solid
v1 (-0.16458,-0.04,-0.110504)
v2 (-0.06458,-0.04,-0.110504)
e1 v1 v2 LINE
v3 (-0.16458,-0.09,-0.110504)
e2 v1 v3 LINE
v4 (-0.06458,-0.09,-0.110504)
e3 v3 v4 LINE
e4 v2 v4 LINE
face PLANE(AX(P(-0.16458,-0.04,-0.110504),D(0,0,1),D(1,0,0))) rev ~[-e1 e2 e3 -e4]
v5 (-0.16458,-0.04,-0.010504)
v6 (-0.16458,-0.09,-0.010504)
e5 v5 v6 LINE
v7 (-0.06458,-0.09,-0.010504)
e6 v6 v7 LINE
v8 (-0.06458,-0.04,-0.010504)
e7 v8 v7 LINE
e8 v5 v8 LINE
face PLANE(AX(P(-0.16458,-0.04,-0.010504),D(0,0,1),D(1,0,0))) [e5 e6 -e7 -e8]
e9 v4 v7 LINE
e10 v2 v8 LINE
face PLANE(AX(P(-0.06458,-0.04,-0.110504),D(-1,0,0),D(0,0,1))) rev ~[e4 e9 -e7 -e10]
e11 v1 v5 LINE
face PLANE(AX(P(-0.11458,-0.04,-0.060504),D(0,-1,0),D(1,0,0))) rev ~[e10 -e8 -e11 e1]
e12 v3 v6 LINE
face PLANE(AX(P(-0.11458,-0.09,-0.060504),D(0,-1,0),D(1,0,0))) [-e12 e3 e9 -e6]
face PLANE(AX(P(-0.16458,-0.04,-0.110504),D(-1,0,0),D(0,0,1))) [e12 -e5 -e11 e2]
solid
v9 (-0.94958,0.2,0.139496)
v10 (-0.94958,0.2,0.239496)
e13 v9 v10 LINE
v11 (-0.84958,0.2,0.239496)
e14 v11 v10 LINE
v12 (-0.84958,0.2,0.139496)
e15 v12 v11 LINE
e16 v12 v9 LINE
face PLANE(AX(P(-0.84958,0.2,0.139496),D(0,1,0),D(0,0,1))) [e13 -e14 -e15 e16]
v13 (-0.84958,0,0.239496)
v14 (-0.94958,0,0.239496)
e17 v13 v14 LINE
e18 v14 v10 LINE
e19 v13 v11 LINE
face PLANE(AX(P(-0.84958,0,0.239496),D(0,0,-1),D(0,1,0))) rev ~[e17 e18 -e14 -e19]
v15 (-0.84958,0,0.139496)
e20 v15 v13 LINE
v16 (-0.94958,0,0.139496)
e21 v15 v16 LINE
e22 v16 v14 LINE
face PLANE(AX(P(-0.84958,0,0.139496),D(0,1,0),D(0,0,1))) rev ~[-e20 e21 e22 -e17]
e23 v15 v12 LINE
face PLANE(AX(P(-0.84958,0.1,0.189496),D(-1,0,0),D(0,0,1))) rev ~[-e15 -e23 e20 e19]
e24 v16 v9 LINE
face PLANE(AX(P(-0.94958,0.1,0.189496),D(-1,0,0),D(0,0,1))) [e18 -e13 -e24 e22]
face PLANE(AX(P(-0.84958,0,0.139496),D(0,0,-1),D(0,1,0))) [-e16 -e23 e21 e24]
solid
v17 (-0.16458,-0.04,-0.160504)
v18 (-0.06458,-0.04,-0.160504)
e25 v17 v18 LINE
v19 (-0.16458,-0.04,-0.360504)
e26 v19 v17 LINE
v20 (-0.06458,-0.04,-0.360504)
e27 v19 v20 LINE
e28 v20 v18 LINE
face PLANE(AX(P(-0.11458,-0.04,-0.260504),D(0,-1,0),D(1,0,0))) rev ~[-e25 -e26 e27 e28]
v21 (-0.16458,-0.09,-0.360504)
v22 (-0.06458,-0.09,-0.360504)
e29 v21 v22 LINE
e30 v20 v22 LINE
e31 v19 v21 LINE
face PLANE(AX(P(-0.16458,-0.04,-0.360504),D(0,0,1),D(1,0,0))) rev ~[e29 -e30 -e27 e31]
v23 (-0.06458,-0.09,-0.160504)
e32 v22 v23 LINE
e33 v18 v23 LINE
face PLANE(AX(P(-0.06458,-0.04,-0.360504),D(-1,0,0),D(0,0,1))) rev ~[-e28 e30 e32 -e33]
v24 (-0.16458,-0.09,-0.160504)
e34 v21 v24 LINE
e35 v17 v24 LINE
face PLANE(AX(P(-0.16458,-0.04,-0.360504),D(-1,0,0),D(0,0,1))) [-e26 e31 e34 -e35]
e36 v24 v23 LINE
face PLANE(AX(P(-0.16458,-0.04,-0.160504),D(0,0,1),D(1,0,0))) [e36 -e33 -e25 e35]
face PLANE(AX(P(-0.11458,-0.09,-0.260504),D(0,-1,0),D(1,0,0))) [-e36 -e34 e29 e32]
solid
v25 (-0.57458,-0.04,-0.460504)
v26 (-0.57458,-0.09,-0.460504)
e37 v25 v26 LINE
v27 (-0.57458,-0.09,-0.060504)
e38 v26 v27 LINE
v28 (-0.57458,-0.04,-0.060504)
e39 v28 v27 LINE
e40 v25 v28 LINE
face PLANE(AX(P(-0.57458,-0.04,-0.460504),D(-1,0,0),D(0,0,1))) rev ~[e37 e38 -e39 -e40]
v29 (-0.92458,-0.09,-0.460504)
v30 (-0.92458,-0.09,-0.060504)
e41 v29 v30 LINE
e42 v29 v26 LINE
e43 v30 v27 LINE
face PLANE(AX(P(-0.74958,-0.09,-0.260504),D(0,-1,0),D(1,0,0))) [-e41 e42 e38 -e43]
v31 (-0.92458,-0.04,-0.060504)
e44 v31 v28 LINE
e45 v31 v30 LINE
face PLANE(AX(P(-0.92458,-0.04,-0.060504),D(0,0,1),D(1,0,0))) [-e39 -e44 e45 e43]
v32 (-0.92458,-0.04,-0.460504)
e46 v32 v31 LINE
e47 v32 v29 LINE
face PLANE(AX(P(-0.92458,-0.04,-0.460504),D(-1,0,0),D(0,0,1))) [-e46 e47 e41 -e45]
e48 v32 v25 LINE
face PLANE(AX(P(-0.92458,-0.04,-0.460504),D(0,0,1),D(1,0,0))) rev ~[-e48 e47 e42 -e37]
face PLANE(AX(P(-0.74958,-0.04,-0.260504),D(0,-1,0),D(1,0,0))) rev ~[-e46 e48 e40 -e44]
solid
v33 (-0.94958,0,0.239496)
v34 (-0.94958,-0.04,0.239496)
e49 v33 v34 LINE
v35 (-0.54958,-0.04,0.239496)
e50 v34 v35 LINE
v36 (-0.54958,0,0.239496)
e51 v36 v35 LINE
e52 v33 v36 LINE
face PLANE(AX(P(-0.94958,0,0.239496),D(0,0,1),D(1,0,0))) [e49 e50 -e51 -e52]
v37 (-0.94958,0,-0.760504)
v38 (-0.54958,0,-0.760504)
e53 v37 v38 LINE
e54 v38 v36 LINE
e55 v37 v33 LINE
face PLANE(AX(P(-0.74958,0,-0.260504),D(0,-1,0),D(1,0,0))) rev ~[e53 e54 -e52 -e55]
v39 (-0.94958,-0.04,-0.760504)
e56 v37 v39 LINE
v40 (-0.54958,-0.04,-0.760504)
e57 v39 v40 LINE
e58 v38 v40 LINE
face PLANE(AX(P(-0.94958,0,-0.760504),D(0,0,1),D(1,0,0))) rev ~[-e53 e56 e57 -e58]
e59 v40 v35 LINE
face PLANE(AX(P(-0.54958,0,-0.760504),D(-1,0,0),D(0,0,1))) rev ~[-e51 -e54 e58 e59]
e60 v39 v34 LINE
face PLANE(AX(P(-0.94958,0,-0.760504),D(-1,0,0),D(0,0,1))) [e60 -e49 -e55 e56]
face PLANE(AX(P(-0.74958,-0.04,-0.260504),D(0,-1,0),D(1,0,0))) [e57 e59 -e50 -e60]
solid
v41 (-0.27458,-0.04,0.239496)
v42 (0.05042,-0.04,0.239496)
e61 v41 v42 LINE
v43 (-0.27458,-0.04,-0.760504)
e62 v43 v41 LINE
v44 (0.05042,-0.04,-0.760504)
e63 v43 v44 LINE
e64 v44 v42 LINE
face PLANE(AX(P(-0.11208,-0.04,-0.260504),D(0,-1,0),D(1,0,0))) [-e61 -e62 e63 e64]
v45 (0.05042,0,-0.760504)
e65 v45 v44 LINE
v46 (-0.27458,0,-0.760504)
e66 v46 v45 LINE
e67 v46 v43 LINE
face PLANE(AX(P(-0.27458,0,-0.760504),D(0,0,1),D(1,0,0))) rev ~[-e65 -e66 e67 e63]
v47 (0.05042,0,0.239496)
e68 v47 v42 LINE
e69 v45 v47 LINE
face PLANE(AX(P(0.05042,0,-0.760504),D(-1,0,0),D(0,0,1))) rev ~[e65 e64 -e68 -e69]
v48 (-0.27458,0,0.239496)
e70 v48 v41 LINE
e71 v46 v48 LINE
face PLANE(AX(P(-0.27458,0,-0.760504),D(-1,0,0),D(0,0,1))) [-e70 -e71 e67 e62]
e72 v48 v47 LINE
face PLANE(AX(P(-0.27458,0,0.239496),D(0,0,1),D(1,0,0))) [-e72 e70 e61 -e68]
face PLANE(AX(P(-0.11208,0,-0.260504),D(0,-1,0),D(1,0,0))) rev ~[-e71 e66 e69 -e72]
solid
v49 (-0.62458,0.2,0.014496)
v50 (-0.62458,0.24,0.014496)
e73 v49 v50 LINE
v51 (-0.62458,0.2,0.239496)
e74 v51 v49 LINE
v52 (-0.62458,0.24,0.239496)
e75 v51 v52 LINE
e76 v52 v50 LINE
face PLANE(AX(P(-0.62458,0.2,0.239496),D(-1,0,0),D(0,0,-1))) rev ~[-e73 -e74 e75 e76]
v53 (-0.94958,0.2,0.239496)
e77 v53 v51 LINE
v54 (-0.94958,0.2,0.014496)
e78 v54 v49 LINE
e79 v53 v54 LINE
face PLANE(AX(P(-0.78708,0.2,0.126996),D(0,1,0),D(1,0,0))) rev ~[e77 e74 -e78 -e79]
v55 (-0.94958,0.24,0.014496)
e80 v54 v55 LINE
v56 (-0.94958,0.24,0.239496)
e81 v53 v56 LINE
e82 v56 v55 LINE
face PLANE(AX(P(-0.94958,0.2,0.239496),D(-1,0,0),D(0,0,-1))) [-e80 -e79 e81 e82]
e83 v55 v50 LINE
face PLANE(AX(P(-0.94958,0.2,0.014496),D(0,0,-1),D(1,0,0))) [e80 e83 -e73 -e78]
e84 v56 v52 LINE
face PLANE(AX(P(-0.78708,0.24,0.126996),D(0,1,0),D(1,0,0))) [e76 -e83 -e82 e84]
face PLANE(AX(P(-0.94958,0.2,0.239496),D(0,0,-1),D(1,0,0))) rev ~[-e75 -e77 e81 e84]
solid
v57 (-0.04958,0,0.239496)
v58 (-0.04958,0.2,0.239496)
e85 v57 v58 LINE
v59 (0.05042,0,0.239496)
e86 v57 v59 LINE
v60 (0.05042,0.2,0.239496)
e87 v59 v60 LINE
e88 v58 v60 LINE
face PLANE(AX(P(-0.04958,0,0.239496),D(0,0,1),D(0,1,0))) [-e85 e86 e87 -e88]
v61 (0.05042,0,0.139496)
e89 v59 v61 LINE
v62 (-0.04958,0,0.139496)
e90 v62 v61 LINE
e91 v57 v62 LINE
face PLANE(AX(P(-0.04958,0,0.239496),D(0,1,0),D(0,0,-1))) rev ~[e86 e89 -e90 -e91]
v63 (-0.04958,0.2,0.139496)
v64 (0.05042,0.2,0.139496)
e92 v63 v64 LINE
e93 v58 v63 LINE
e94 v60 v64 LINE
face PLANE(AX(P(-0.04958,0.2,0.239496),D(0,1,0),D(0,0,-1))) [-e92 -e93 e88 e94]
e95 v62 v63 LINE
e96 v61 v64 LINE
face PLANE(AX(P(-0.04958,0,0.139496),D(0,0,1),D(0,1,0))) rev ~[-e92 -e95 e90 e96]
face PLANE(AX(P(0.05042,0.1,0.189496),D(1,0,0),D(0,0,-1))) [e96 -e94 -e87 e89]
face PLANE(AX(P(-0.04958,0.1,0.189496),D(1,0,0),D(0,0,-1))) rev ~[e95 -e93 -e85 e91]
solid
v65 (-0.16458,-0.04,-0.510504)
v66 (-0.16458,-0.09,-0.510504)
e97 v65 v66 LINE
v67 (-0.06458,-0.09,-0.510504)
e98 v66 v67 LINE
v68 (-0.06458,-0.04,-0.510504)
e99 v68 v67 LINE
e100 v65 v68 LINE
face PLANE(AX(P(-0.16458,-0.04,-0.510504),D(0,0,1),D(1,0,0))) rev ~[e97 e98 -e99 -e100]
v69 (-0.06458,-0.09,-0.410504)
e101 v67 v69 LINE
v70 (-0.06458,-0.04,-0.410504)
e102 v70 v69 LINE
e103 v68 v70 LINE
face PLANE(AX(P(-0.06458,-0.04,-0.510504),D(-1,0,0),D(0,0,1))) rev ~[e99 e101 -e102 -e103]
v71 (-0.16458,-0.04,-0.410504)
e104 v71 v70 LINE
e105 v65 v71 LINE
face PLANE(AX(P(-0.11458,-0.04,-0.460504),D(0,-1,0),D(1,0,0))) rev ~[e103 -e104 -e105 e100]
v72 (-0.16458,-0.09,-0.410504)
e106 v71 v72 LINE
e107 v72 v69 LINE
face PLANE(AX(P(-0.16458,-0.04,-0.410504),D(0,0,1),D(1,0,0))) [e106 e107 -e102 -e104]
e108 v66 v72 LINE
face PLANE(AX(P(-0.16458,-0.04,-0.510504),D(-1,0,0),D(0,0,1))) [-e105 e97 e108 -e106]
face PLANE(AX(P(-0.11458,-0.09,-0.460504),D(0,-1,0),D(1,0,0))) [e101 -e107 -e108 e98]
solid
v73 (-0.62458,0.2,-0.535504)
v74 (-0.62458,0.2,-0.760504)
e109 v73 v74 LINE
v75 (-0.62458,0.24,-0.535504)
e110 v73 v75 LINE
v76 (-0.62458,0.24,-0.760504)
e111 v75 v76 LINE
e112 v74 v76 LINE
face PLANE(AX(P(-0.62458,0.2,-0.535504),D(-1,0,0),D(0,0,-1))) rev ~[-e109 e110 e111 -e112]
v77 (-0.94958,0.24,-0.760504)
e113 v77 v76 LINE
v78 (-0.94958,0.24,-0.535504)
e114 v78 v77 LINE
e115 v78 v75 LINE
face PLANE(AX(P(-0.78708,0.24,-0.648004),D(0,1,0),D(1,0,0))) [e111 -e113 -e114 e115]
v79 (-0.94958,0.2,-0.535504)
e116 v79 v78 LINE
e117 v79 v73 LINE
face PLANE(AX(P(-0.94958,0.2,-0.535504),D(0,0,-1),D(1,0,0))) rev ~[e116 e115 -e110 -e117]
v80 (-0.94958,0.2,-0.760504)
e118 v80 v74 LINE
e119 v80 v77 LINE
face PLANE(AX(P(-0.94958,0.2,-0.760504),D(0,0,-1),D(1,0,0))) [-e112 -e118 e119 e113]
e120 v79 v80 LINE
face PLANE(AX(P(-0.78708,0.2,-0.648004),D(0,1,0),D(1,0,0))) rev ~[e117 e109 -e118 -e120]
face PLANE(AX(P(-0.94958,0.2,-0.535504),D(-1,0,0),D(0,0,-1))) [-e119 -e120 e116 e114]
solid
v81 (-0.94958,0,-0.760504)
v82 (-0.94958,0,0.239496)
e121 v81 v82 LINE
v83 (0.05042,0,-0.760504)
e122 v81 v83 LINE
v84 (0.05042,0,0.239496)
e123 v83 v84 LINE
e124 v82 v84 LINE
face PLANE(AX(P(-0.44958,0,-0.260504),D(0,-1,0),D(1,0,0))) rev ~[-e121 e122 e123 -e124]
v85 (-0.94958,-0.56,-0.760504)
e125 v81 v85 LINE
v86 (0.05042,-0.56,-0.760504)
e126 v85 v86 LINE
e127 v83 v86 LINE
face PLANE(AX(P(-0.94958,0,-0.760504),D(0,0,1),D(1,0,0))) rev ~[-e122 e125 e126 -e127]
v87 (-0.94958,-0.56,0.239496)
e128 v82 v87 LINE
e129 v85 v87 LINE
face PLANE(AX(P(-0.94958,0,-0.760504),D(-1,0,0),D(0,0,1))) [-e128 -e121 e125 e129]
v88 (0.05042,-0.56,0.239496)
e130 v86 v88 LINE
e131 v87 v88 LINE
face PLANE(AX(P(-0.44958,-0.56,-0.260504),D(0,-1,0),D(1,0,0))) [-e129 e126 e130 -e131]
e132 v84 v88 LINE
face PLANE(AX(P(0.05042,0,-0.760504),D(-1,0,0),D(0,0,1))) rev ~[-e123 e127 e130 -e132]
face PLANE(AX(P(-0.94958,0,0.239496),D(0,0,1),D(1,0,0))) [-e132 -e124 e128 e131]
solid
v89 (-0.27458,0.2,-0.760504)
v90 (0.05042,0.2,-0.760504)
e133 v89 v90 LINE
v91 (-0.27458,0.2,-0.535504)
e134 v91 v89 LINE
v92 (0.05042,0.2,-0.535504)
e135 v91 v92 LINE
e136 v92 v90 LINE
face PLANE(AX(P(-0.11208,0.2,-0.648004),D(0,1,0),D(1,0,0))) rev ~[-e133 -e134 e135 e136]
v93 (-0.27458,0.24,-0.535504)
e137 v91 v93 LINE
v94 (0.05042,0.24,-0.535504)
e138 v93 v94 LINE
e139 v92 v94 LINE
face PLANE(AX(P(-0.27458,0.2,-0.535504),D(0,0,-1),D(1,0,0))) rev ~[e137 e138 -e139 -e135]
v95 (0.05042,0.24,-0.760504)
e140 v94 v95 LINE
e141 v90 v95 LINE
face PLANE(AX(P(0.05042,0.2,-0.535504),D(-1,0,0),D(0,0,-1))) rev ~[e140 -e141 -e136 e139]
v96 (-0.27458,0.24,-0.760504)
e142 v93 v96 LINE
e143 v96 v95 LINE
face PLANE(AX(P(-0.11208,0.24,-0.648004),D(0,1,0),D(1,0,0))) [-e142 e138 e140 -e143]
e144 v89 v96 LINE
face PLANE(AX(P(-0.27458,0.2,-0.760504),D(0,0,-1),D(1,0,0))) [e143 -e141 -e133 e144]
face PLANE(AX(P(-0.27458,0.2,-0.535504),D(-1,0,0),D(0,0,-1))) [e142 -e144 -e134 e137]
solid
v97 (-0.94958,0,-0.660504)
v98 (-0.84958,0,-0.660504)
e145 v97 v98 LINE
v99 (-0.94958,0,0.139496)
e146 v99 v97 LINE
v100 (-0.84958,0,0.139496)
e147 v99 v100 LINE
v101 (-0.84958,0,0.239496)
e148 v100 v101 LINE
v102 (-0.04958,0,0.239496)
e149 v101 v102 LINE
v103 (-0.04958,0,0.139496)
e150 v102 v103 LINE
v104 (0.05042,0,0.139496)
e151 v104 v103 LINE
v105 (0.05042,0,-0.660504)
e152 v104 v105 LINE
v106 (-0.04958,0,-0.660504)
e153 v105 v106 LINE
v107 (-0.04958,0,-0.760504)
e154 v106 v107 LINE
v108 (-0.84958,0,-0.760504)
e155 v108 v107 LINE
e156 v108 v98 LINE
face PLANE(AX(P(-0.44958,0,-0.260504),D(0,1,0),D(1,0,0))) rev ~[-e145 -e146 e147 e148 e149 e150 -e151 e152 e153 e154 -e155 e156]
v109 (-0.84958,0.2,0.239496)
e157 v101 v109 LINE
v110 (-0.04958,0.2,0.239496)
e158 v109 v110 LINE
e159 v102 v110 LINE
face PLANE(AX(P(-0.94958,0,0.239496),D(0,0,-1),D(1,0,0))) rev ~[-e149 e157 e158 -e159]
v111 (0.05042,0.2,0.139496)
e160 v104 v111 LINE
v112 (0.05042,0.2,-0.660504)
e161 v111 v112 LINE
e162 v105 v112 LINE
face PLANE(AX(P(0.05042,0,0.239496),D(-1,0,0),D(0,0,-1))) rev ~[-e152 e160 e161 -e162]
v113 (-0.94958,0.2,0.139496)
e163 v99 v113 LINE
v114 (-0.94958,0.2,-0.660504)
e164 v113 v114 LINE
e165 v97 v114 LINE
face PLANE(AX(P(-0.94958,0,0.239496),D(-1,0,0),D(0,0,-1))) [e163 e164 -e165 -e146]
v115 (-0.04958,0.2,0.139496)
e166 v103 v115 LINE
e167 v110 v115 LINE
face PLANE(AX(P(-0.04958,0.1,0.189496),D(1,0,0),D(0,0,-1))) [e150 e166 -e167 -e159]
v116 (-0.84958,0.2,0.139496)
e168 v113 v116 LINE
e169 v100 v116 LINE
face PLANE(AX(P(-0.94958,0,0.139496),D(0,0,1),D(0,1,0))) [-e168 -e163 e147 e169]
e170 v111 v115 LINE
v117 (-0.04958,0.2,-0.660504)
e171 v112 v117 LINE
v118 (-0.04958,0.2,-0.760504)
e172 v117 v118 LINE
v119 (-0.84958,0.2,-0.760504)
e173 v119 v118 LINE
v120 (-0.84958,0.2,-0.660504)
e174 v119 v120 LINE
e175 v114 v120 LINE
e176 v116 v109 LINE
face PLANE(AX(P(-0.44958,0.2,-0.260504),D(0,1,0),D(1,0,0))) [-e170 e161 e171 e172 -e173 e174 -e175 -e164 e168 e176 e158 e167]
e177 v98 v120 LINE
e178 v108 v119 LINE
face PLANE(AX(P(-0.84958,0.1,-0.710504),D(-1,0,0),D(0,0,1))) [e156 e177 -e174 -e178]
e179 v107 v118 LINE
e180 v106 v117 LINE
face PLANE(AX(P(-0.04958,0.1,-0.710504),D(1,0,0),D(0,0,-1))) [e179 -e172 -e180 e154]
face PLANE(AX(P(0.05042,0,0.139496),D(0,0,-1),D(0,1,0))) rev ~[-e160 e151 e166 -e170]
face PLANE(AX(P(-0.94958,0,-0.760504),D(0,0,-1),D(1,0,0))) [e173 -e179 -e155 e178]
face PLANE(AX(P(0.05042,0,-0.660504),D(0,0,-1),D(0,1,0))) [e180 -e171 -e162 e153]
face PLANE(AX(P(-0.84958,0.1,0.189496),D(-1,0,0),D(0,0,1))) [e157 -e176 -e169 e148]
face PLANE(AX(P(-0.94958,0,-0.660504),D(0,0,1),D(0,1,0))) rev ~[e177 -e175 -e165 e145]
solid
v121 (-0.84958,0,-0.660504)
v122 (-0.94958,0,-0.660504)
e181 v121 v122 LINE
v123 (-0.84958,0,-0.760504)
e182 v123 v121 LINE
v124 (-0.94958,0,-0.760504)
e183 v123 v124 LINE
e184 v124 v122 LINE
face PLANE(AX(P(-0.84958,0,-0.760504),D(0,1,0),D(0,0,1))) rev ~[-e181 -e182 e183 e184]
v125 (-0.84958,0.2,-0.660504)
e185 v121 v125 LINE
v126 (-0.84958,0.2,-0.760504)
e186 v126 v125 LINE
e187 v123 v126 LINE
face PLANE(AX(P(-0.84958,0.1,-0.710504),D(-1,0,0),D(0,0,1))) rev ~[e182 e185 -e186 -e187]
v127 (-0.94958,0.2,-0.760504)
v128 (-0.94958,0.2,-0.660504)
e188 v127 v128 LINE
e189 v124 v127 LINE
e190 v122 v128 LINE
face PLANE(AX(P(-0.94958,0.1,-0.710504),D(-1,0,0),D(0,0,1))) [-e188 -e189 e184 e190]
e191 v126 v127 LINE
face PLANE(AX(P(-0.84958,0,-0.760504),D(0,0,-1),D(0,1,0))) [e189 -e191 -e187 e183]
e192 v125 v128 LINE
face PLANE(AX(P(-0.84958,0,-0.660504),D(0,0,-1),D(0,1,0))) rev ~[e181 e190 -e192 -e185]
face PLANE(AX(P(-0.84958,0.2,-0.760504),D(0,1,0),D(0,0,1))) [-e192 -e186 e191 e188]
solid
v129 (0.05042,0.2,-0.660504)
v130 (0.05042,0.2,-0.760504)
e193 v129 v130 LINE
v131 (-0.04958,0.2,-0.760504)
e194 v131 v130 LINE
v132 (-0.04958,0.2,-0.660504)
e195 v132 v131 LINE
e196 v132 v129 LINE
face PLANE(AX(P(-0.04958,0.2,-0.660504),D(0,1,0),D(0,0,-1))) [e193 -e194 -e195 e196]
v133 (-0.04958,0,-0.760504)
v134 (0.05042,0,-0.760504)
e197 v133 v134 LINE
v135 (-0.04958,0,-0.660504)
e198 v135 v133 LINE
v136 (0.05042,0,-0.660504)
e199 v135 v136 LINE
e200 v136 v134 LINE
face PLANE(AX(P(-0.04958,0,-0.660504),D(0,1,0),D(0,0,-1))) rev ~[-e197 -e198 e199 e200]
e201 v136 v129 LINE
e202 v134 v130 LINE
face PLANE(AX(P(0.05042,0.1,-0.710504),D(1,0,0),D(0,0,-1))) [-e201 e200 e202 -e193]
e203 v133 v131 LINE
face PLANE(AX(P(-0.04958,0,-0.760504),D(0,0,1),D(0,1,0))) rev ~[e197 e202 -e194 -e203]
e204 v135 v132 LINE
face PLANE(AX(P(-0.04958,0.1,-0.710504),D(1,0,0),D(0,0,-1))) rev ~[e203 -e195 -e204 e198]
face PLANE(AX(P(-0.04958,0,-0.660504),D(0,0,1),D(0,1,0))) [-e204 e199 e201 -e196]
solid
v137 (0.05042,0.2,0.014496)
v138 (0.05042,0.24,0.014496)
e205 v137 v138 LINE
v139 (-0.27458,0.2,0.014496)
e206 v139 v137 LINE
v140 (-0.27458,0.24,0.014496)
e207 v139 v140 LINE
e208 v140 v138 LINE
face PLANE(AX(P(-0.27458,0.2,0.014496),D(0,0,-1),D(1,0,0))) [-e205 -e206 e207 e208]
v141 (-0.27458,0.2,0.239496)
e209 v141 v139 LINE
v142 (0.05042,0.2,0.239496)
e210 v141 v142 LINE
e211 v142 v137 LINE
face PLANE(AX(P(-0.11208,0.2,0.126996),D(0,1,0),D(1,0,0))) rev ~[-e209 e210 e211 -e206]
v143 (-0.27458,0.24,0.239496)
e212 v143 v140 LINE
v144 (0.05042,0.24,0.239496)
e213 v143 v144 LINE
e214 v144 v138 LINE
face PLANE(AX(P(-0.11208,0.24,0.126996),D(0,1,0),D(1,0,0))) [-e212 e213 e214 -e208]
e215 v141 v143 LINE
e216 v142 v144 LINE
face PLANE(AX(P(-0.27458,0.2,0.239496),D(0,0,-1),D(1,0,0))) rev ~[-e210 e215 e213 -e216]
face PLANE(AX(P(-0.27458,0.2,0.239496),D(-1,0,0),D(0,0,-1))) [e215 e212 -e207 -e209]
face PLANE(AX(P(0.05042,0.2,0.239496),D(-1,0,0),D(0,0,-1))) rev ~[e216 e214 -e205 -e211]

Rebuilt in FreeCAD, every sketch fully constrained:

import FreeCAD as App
import Part
import Sketcher
from FreeCAD import Vector
Q = App.Units.Quantity


def add_polygon(sketch, points):
    """Adds a closed chain of lines whose ends are joined by coincident constraints."""
    first, n = sketch.GeometryCount, len(points)
    for a, b in zip(points, points[1:] + points[:1]):
        sketch.addGeometry(Part.LineSegment(App.Vector(*a, 0), App.Vector(*b, 0)), False)
    for i in range(n):
        sketch.addConstraint(Sketcher.Constraint("Coincident", first + i, 2, first + (i + 1) % n, 1))

doc = App.newDocument("Part")
params = doc.addObject("Spreadsheet::Sheet", "Params")
for row, (alias, value) in enumerate([
    ("sketch1_width", "1 mm"),
    ("pad1_length", "0.2 mm"),
    ("sketch2_width", "0.2 mm"),
    ("sketch2_height", "0.1 mm"),
    ("pocket1_length", "0.1 mm"),
    ("sketch3_width", "0.2 mm"),
    ("sketch3_height", "0.1 mm"),
    ("pocket2_length", "0.1 mm"),
    ("sketch4_width", "0.2 mm"),
    ("sketch4_height", "0.1 mm"),
    ("pocket3_length", "0.1 mm"),
    ("pad2_length", "0.04 mm"),
    ("pad3_length", "0.04 mm"),
    ("pad4_length", "0.04 mm"),
    ("pad5_length", "0.04 mm"),
    ("sketch9_height", "1 mm"),
    ("sketch9_width", "0.4 mm"),
    ("pad6_length", "0.04 mm"),
    ("sketch10_height", "1 mm"),
    ("pad7_length", "0.04 mm"),
    ("sketch11_height", "0.4 mm"),
    ("sketch11_width", "0.35 mm"),
    ("pad8_length", "0.05 mm"),
    ("sketch12_width", "0.1 mm"),
    ("pad9_length", "0.05 mm"),
    ("sketch13_width", "0.1 mm"),
    ("pad10_length", "0.05 mm"),
    ("sketch14_width", "0.1 mm"),
    ("sketch14_height", "0.2 mm"),
    ("pad11_length", "0.05 mm"),
    ("sketch15_width", "1 mm"),
    ("pad12_length", "0.56 mm"),
    ("sketch16_width", "0.2 mm"),
    ("sketch16_height", "0.1 mm"),
    ("pad13_length", "0.1 mm"),
    ("sketch17_width", "0.2 mm"),
    ("sketch17_height", "0.1 mm"),
    ("pad14_length", "0.1 mm"),
    ("sketch18_width", "0.2 mm"),
    ("sketch18_height", "0.1 mm"),
    ("pad15_length", "0.1 mm"),
    ("sketch19_width", "0.2 mm"),
    ("sketch19_height", "0.1 mm"),
    ("pad16_length", "0.1 mm"),
], start=1):
    params.set(f"A{row}", alias)
    params.set(f"B{row}", "=" + value)
    params.setAlias(f"B{row}", alias)

body = doc.addObject("PartDesign::Body", "Body")

# Sketch on XZ plane
sketch1 = body.newObject("Sketcher::SketchObject", "Sketch")
sketch1.AttachmentSupport = (doc.getObject("XZ_Plane"), [""])
sketch1.MapMode = "FlatFace"
add_polygon(sketch1, [(-0.9, -0.8), (-0.9, 0.2), (0.1, 0.2), (0.1, -0.8)])  # lines 0-3
sketch1.addConstraint([
    Sketcher.Constraint("Vertical", 0),
    Sketcher.Constraint("Horizontal", 1),
    Sketcher.Constraint("Vertical", 2),
    Sketcher.Constraint("Horizontal", 3),
    Sketcher.Constraint("Equal", 3, 0),
    Sketcher.Constraint("DistanceX", 1, 1, 1, 2, Q("1 mm")),
    Sketcher.Constraint("DistanceX", 0, 2, -1, 1, Q("0.94958 mm")),
    Sketcher.Constraint("DistanceY", -1, 1, 0, 2, Q("0.239496 mm")),
])
sketch1.setExpression("Constraints[9]", "Params.sketch1_width")
pad1 = body.newObject("PartDesign::Pad", "Pad")
pad1.Profile = sketch1
pad1.setExpression("Length", "Params.pad1_length")
pad1.Reversed = True

# Sketch on YZ plane
sketch2 = body.newObject("Sketcher::SketchObject", "Sketch001")
sketch2.AttachmentSupport = (doc.getObject("YZ_Plane"), [""])
sketch2.MapMode = "FlatFace"
sketch2.AttachmentOffset = App.Placement(Vector(0, 0, -0.94958), App.Rotation())
add_polygon(sketch2, [(0.2, 0.14), (0, 0.14), (0, 0.24), (0.2, 0.24)])  # lines 0-3
sketch2.addConstraint([
    Sketcher.Constraint("Horizontal", 0),
    Sketcher.Constraint("Vertical", 1),
    Sketcher.Constraint("Horizontal", 2),
    Sketcher.Constraint("Vertical", 3),
    Sketcher.Constraint("PointOnObject", 0, 2, -2),
    Sketcher.Constraint("DistanceX", 0, 2, 0, 1, Q("0.2 mm")),
    Sketcher.Constraint("DistanceY", 1, 1, 1, 2, Q("0.1 mm")),
    Sketcher.Constraint("DistanceY", -1, 1, 0, 2, Q("0.139496 mm")),
])
sketch2.setExpression("Constraints[9]", "Params.sketch2_width")
sketch2.setExpression("Constraints[10]", "Params.sketch2_height")
pocket1 = body.newObject("PartDesign::Pocket", "Pocket")
pocket1.Profile = sketch2
pocket1.setExpression("Length", "Params.pocket1_length")
pocket1.Reversed = True

# Sketch on YZ plane
sketch3 = body.newObject("Sketcher::SketchObject", "Sketch002")
sketch3.AttachmentSupport = (doc.getObject("YZ_Plane"), [""])
sketch3.MapMode = "FlatFace"
sketch3.AttachmentOffset = App.Placement(Vector(0, 0, -0.94958), App.Rotation())
add_polygon(sketch3, [(0.2, -0.76), (0, -0.76), (0, -0.66), (0.2, -0.66)])  # lines 0-3
sketch3.addConstraint([
    Sketcher.Constraint("Horizontal", 0),
    Sketcher.Constraint("Vertical", 1),
    Sketcher.Constraint("Horizontal", 2),
    Sketcher.Constraint("Vertical", 3),
    Sketcher.Constraint("PointOnObject", 0, 2, -2),
    Sketcher.Constraint("DistanceX", 0, 2, 0, 1, Q("0.2 mm")),
    Sketcher.Constraint("DistanceY", 1, 1, 1, 2, Q("0.1 mm")),
    Sketcher.Constraint("DistanceY", 0, 2, -1, 1, Q("0.760504 mm")),
])
sketch3.setExpression("Constraints[9]", "Params.sketch3_width")
sketch3.setExpression("Constraints[10]", "Params.sketch3_height")
pocket2 = body.newObject("PartDesign::Pocket", "Pocket001")
pocket2.Profile = sketch3
pocket2.setExpression("Length", "Params.pocket2_length")
pocket2.Reversed = True

# Sketch on YZ plane
sketch4 = body.newObject("Sketcher::SketchObject", "Sketch003")
sketch4.AttachmentSupport = (doc.getObject("YZ_Plane"), [""])
sketch4.MapMode = "FlatFace"
sketch4.AttachmentOffset = App.Placement(Vector(0, 0, 0.05042), App.Rotation())
add_polygon(sketch4, [(0.2, 0.24), (0, 0.24), (0, 0.14), (0.2, 0.14)])  # lines 0-3
add_polygon(sketch4, [(0.2, -0.66), (0, -0.66), (0, -0.76), (0.2, -0.76)])  # lines 4-7
sketch4.addConstraint([
    Sketcher.Constraint("Horizontal", 0),
    Sketcher.Constraint("Vertical", 1),
    Sketcher.Constraint("Horizontal", 2),
    Sketcher.Constraint("Vertical", 3),
    Sketcher.Constraint("Horizontal", 4),
    Sketcher.Constraint("Vertical", 5),
    Sketcher.Constraint("Horizontal", 6),
    Sketcher.Constraint("Vertical", 7),
    Sketcher.Constraint("PointOnObject", 0, 2, -2),
    Sketcher.Constraint("PointOnObject", 4, 2, -2),
    Sketcher.Constraint("Vertical", 3, 2, 6, 2),
    Sketcher.Constraint("Equal", 3, 5),
    Sketcher.Constraint("DistanceX", 0, 2, 0, 1, Q("0.2 mm")),
    Sketcher.Constraint("DistanceY", 1, 2, 1, 1, Q("0.1 mm")),
    Sketcher.Constraint("DistanceY", 5, 2, 0, 2, Q("1 mm")),
    Sketcher.Constraint("DistanceY", -1, 1, 0, 2, Q("0.239496 mm")),
])
sketch4.setExpression("Constraints[20]", "Params.sketch4_width")
sketch4.setExpression("Constraints[21]", "Params.sketch4_height")
pocket3 = body.newObject("PartDesign::Pocket", "Pocket002")
pocket3.Profile = sketch4
pocket3.setExpression("Length", "Params.pocket3_length")
body2 = doc.addObject("PartDesign::Body", "Body001")

# Sketch on XZ plane
sketch5 = body2.newObject("Sketcher::SketchObject", "Sketch004")
sketch5.AttachmentSupport = (doc.getObject("XZ_Plane001"), [""])
sketch5.MapMode = "FlatFace"
sketch5.AttachmentOffset = App.Placement(Vector(0, 0, -0.2), App.Rotation())
add_polygon(sketch5, [(-0.95, -0.76), (-0.95, -0.54), (-0.62, -0.54), (-0.62, -0.76)])  # lines 0-3
sketch5.addConstraint([
    Sketcher.Constraint("Vertical", 0),
    Sketcher.Constraint("Horizontal", 1),
    Sketcher.Constraint("Vertical", 2),
    Sketcher.Constraint("Horizontal", 3),
    Sketcher.Constraint("DistanceX", 1, 1, 1, 2, Q("0.325 mm")),
    Sketcher.Constraint("DistanceY", 0, 1, 0, 2, Q("0.225 mm")),
    Sketcher.Constraint("DistanceX", 0, 2, -1, 1, Q("0.94958 mm")),
    Sketcher.Constraint("DistanceY", 0, 2, -1, 1, Q("0.535504 mm")),
])
pad2 = body2.newObject("PartDesign::Pad", "Pad001")
pad2.Profile = sketch5
pad2.setExpression("Length", "Params.pad2_length")
pad2.Reversed = True
body3 = doc.addObject("PartDesign::Body", "Body002")

# Sketch on XZ plane
sketch6 = body3.newObject("Sketcher::SketchObject", "Sketch005")
sketch6.AttachmentSupport = (doc.getObject("XZ_Plane002"), [""])
sketch6.MapMode = "FlatFace"
sketch6.AttachmentOffset = App.Placement(Vector(0, 0, -0.2), App.Rotation())
add_polygon(sketch6, [(-0.27, -0.76), (-0.27, -0.54), (0.05, -0.54), (0.05, -0.76)])  # lines 0-3
sketch6.addConstraint([
    Sketcher.Constraint("Vertical", 0),
    Sketcher.Constraint("Horizontal", 1),
    Sketcher.Constraint("Vertical", 2),
    Sketcher.Constraint("Horizontal", 3),
    Sketcher.Constraint("DistanceX", 1, 1, 1, 2, Q("0.325 mm")),
    Sketcher.Constraint("DistanceY", 0, 1, 0, 2, Q("0.225 mm")),
    Sketcher.Constraint("DistanceX", 0, 2, -1, 1, Q("0.27458 mm")),
    Sketcher.Constraint("DistanceY", 0, 2, -1, 1, Q("0.535504 mm")),
])
pad3 = body3.newObject("PartDesign::Pad", "Pad002")
pad3.Profile = sketch6
pad3.setExpression("Length", "Params.pad3_length")
pad3.Reversed = True
body4 = doc.addObject("PartDesign::Body", "Body003")

# Sketch on XZ plane
sketch7 = body4.newObject("Sketcher::SketchObject", "Sketch006")
sketch7.AttachmentSupport = (doc.getObject("XZ_Plane003"), [""])
sketch7.MapMode = "FlatFace"
sketch7.AttachmentOffset = App.Placement(Vector(0, 0, -0.2), App.Rotation())
add_polygon(sketch7, [(-0.95, 0.01), (-0.95, 0.24), (-0.62, 0.24), (-0.62, 0.01)])  # lines 0-3
sketch7.addConstraint([
    Sketcher.Constraint("Vertical", 0),
    Sketcher.Constraint("Horizontal", 1),
    Sketcher.Constraint("Vertical", 2),
    Sketcher.Constraint("Horizontal", 3),
    Sketcher.Constraint("DistanceX", 1, 1, 1, 2, Q("0.325 mm")),
    Sketcher.Constraint("DistanceY", 0, 1, 0, 2, Q("0.225 mm")),
    Sketcher.Constraint("DistanceX", 0, 2, -1, 1, Q("0.94958 mm")),
    Sketcher.Constraint("DistanceY", -1, 1, 0, 2, Q("0.239496 mm")),
])
pad4 = body4.newObject("PartDesign::Pad", "Pad003")
pad4.Profile = sketch7
pad4.setExpression("Length", "Params.pad4_length")
pad4.Reversed = True
body5 = doc.addObject("PartDesign::Body", "Body004")

# Sketch on XZ plane
sketch8 = body5.newObject("Sketcher::SketchObject", "Sketch007")
sketch8.AttachmentSupport = (doc.getObject("XZ_Plane004"), [""])
sketch8.MapMode = "FlatFace"
sketch8.AttachmentOffset = App.Placement(Vector(0, 0, -0.2), App.Rotation())
add_polygon(sketch8, [(-0.27, 0.01), (-0.27, 0.24), (0.05, 0.24), (0.05, 0.01)])  # lines 0-3
sketch8.addConstraint([
    Sketcher.Constraint("Vertical", 0),
    Sketcher.Constraint("Horizontal", 1),
    Sketcher.Constraint("Vertical", 2),
    Sketcher.Constraint("Horizontal", 3),
    Sketcher.Constraint("DistanceX", 1, 1, 1, 2, Q("0.325 mm")),
    Sketcher.Constraint("DistanceY", 0, 1, 0, 2, Q("0.225 mm")),
    Sketcher.Constraint("DistanceX", 0, 2, -1, 1, Q("0.27458 mm")),
    Sketcher.Constraint("DistanceY", -1, 1, 0, 2, Q("0.239496 mm")),
])
pad5 = body5.newObject("PartDesign::Pad", "Pad004")
pad5.Profile = sketch8
pad5.setExpression("Length", "Params.pad5_length")
pad5.Reversed = True
body6 = doc.addObject("PartDesign::Body", "Body005")

# Sketch on XZ plane
sketch9 = body6.newObject("Sketcher::SketchObject", "Sketch008")
sketch9.AttachmentSupport = (doc.getObject("XZ_Plane005"), [""])
sketch9.MapMode = "FlatFace"
add_polygon(sketch9, [(-0.95, 0.24), (-0.95, -0.76), (-0.55, -0.76), (-0.55, 0.24)])  # lines 0-3
sketch9.addConstraint([
    Sketcher.Constraint("Vertical", 0),
    Sketcher.Constraint("Horizontal", 1),
    Sketcher.Constraint("Vertical", 2),
    Sketcher.Constraint("Horizontal", 3),
    Sketcher.Constraint("DistanceY", 0, 2, 0, 1, Q("1 mm")),
    Sketcher.Constraint("DistanceX", 1, 1, 1, 2, Q("0.4 mm")),
    Sketcher.Constraint("DistanceX", 0, 2, -1, 1, Q("0.94958 mm")),
    Sketcher.Constraint("DistanceY", 0, 2, -1, 1, Q("0.760504 mm")),
])
sketch9.setExpression("Constraints[8]", "Params.sketch9_height")
sketch9.setExpression("Constraints[9]", "Params.sketch9_width")
pad6 = body6.newObject("PartDesign::Pad", "Pad005")
pad6.Profile = sketch9
pad6.setExpression("Length", "Params.pad6_length")
body7 = doc.addObject("PartDesign::Body", "Body006")

# Sketch on XZ plane
sketch10 = body7.newObject("Sketcher::SketchObject", "Sketch009")
sketch10.AttachmentSupport = (doc.getObject("XZ_Plane006"), [""])
sketch10.MapMode = "FlatFace"
add_polygon(sketch10, [(-0.27, 0.24), (-0.27, -0.76), (0.05, -0.76), (0.05, 0.24)])  # lines 0-3
sketch10.addConstraint([
    Sketcher.Constraint("Vertical", 0),
    Sketcher.Constraint("Horizontal", 1),
    Sketcher.Constraint("Vertical", 2),
    Sketcher.Constraint("Horizontal", 3),
    Sketcher.Constraint("DistanceY", 0, 2, 0, 1, Q("1 mm")),
    Sketcher.Constraint("DistanceX", 1, 1, 1, 2, Q("0.325 mm")),
    Sketcher.Constraint("DistanceX", 0, 2, -1, 1, Q("0.27458 mm")),
    Sketcher.Constraint("DistanceY", 0, 2, -1, 1, Q("0.760504 mm")),
])
sketch10.setExpression("Constraints[8]", "Params.sketch10_height")
pad7 = body7.newObject("PartDesign::Pad", "Pad006")
pad7.Profile = sketch10
pad7.setExpression("Length", "Params.pad7_length")
body8 = doc.addObject("PartDesign::Body", "Body007")

# Sketch on XZ plane
sketch11 = body8.newObject("Sketcher::SketchObject", "Sketch010")
sketch11.AttachmentSupport = (doc.getObject("XZ_Plane007"), [""])
sketch11.MapMode = "FlatFace"
sketch11.AttachmentOffset = App.Placement(Vector(0, 0, 0.04), App.Rotation())
add_polygon(sketch11, [(-0.92, -0.06), (-0.92, -0.46), (-0.57, -0.46), (-0.57, -0.06)])  # lines 0-3
sketch11.addConstraint([
    Sketcher.Constraint("Vertical", 0),
    Sketcher.Constraint("Horizontal", 1),
    Sketcher.Constraint("Vertical", 2),
    Sketcher.Constraint("Horizontal", 3),
    Sketcher.Constraint("DistanceY", 0, 2, 0, 1, Q("0.4 mm")),
    Sketcher.Constraint("DistanceX", 1, 1, 1, 2, Q("0.35 mm")),
    Sketcher.Constraint("DistanceX", 0, 2, -1, 1, Q("0.92458 mm")),
    Sketcher.Constraint("DistanceY", 0, 2, -1, 1, Q("0.460504 mm")),
])
sketch11.setExpression("Constraints[8]", "Params.sketch11_height")
sketch11.setExpression("Constraints[9]", "Params.sketch11_width")
pad8 = body8.newObject("PartDesign::Pad", "Pad007")
pad8.Profile = sketch11
pad8.setExpression("Length", "Params.pad8_length")
body9 = doc.addObject("PartDesign::Body", "Body008")

# Sketch on XZ plane
sketch12 = body9.newObject("Sketcher::SketchObject", "Sketch011")
sketch12.AttachmentSupport = (doc.getObject("XZ_Plane008"), [""])
sketch12.MapMode = "FlatFace"
sketch12.AttachmentOffset = App.Placement(Vector(0, 0, 0.04), App.Rotation())
add_polygon(sketch12, [(-0.16, -0.01), (-0.16, -0.11), (-0.06, -0.11), (-0.06, -0.01)])  # lines 0-3
sketch12.addConstraint([
    Sketcher.Constraint("Vertical", 0),
    Sketcher.Constraint("Horizontal", 1),
    Sketcher.Constraint("Vertical", 2),
    Sketcher.Constraint("Horizontal", 3),
    Sketcher.Constraint("Equal", 3, 0),
    Sketcher.Constraint("DistanceX", 1, 1, 1, 2, Q("0.1 mm")),
    Sketcher.Constraint("DistanceX", 0, 2, -1, 1, Q("0.16458 mm")),
    Sketcher.Constraint("DistanceY", 0, 2, -1, 1, Q("0.110504 mm")),
])
sketch12.setExpression("Constraints[9]", "Params.sketch12_width")
pad9 = body9.newObject("PartDesign::Pad", "Pad008")
pad9.Profile = sketch12
pad9.setExpression("Length", "Params.pad9_length")
body10 = doc.addObject("PartDesign::Body", "Body009")

# Sketch on XZ plane
sketch13 = body10.newObject("Sketcher::SketchObject", "Sketch012")
sketch13.AttachmentSupport = (doc.getObject("XZ_Plane009"), [""])
sketch13.MapMode = "FlatFace"
sketch13.AttachmentOffset = App.Placement(Vector(0, 0, 0.04), App.Rotation())
add_polygon(sketch13, [(-0.16, -0.41), (-0.16, -0.51), (-0.06, -0.51), (-0.06, -0.41)])  # lines 0-3
sketch13.addConstraint([
    Sketcher.Constraint("Vertical", 0),
    Sketcher.Constraint("Horizontal", 1),
    Sketcher.Constraint("Vertical", 2),
    Sketcher.Constraint("Horizontal", 3),
    Sketcher.Constraint("Equal", 3, 0),
    Sketcher.Constraint("DistanceX", 1, 1, 1, 2, Q("0.1 mm")),
    Sketcher.Constraint("DistanceX", 0, 2, -1, 1, Q("0.16458 mm")),
    Sketcher.Constraint("DistanceY", 0, 2, -1, 1, Q("0.510504 mm")),
])
sketch13.setExpression("Constraints[9]", "Params.sketch13_width")
pad10 = body10.newObject("PartDesign::Pad", "Pad009")
pad10.Profile = sketch13
pad10.setExpression("Length", "Params.pad10_length")
body11 = doc.addObject("PartDesign::Body", "Body010")

# Sketch on XZ plane
sketch14 = body11.newObject("Sketcher::SketchObject", "Sketch013")
sketch14.AttachmentSupport = (doc.getObject("XZ_Plane010"), [""])
sketch14.MapMode = "FlatFace"
sketch14.AttachmentOffset = App.Placement(Vector(0, 0, 0.04), App.Rotation())
add_polygon(sketch14, [(-0.16, -0.16), (-0.16, -0.36), (-0.06, -0.36), (-0.06, -0.16)])  # lines 0-3
sketch14.addConstraint([
    Sketcher.Constraint("Vertical", 0),
    Sketcher.Constraint("Horizontal", 1),
    Sketcher.Constraint("Vertical", 2),
    Sketcher.Constraint("Horizontal", 3),
    Sketcher.Constraint("DistanceX", 1, 1, 1, 2, Q("0.1 mm")),
    Sketcher.Constraint("DistanceY", 0, 2, 0, 1, Q("0.2 mm")),
    Sketcher.Constraint("DistanceX", 0, 2, -1, 1, Q("0.16458 mm")),
    Sketcher.Constraint("DistanceY", 0, 2, -1, 1, Q("0.360504 mm")),
])
sketch14.setExpression("Constraints[8]", "Params.sketch14_width")
sketch14.setExpression("Constraints[9]", "Params.sketch14_height")
pad11 = body11.newObject("PartDesign::Pad", "Pad010")
pad11.Profile = sketch14
pad11.setExpression("Length", "Params.pad11_length")
body12 = doc.addObject("PartDesign::Body", "Body011")

# Sketch on XZ plane
sketch15 = body12.newObject("Sketcher::SketchObject", "Sketch014")
sketch15.AttachmentSupport = (doc.getObject("XZ_Plane011"), [""])
sketch15.MapMode = "FlatFace"
add_polygon(sketch15, [(-0.9, 0.2), (-0.9, -0.8), (0.1, -0.8), (0.1, 0.2)])  # lines 0-3
sketch15.addConstraint([
    Sketcher.Constraint("Vertical", 0),
    Sketcher.Constraint("Horizontal", 1),
    Sketcher.Constraint("Vertical", 2),
    Sketcher.Constraint("Horizontal", 3),
    Sketcher.Constraint("Equal", 3, 0),
    Sketcher.Constraint("DistanceX", 1, 1, 1, 2, Q("1 mm")),
    Sketcher.Constraint("DistanceX", 0, 2, -1, 1, Q("0.94958 mm")),
    Sketcher.Constraint("DistanceY", 0, 2, -1, 1, Q("0.760504 mm")),
])
sketch15.setExpression("Constraints[9]", "Params.sketch15_width")
pad12 = body12.newObject("PartDesign::Pad", "Pad011")
pad12.Profile = sketch15
pad12.setExpression("Length", "Params.pad12_length")
body13 = doc.addObject("PartDesign::Body", "Body012")

# Sketch on YZ plane
sketch16 = body13.newObject("Sketcher::SketchObject", "Sketch015")
sketch16.AttachmentSupport = (doc.getObject("YZ_Plane012"), [""])
sketch16.MapMode = "FlatFace"
sketch16.AttachmentOffset = App.Placement(Vector(0, 0, -0.04958), App.Rotation())
add_polygon(sketch16, [(0.2, 0.24), (0, 0.24), (0, 0.14), (0.2, 0.14)])  # lines 0-3
sketch16.addConstraint([
    Sketcher.Constraint("Horizontal", 0),
    Sketcher.Constraint("Vertical", 1),
    Sketcher.Constraint("Horizontal", 2),
    Sketcher.Constraint("Vertical", 3),
    Sketcher.Constraint("PointOnObject", 0, 2, -2),
    Sketcher.Constraint("DistanceX", 0, 2, 0, 1, Q("0.2 mm")),
    Sketcher.Constraint("DistanceY", 1, 2, 1, 1, Q("0.1 mm")),
    Sketcher.Constraint("DistanceY", -1, 1, 0, 2, Q("0.239496 mm")),
])
sketch16.setExpression("Constraints[9]", "Params.sketch16_width")
sketch16.setExpression("Constraints[10]", "Params.sketch16_height")
pad13 = body13.newObject("PartDesign::Pad", "Pad012")
pad13.Profile = sketch16
pad13.setExpression("Length", "Params.pad13_length")
body14 = doc.addObject("PartDesign::Body", "Body013")

# Sketch on YZ plane
sketch17 = body14.newObject("Sketcher::SketchObject", "Sketch016")
sketch17.AttachmentSupport = (doc.getObject("YZ_Plane013"), [""])
sketch17.MapMode = "FlatFace"
sketch17.AttachmentOffset = App.Placement(Vector(0, 0, -0.04958), App.Rotation())
add_polygon(sketch17, [(0.2, -0.66), (0, -0.66), (0, -0.76), (0.2, -0.76)])  # lines 0-3
sketch17.addConstraint([
    Sketcher.Constraint("Horizontal", 0),
    Sketcher.Constraint("Vertical", 1),
    Sketcher.Constraint("Horizontal", 2),
    Sketcher.Constraint("Vertical", 3),
    Sketcher.Constraint("PointOnObject", 0, 2, -2),
    Sketcher.Constraint("DistanceX", 0, 2, 0, 1, Q("0.2 mm")),
    Sketcher.Constraint("DistanceY", 1, 2, 1, 1, Q("0.1 mm")),
    Sketcher.Constraint("DistanceY", 0, 2, -1, 1, Q("0.660504 mm")),
])
sketch17.setExpression("Constraints[9]", "Params.sketch17_width")
sketch17.setExpression("Constraints[10]", "Params.sketch17_height")
pad14 = body14.newObject("PartDesign::Pad", "Pad013")
pad14.Profile = sketch17
pad14.setExpression("Length", "Params.pad14_length")
body15 = doc.addObject("PartDesign::Body", "Body014")

# Sketch on YZ plane
sketch18 = body15.newObject("Sketcher::SketchObject", "Sketch017")
sketch18.AttachmentSupport = (doc.getObject("YZ_Plane014"), [""])
sketch18.MapMode = "FlatFace"
sketch18.AttachmentOffset = App.Placement(Vector(0, 0, -0.84958), App.Rotation())
add_polygon(sketch18, [(0.2, 0.14), (0, 0.14), (0, 0.24), (0.2, 0.24)])  # lines 0-3
sketch18.addConstraint([
    Sketcher.Constraint("Horizontal", 0),
    Sketcher.Constraint("Vertical", 1),
    Sketcher.Constraint("Horizontal", 2),
    Sketcher.Constraint("Vertical", 3),
    Sketcher.Constraint("PointOnObject", 0, 2, -2),
    Sketcher.Constraint("DistanceX", 0, 2, 0, 1, Q("0.2 mm")),
    Sketcher.Constraint("DistanceY", 1, 1, 1, 2, Q("0.1 mm")),
    Sketcher.Constraint("DistanceY", -1, 1, 0, 2, Q("0.139496 mm")),
])
sketch18.setExpression("Constraints[9]", "Params.sketch18_width")
sketch18.setExpression("Constraints[10]", "Params.sketch18_height")
pad15 = body15.newObject("PartDesign::Pad", "Pad014")
pad15.Profile = sketch18
pad15.setExpression("Length", "Params.pad15_length")
pad15.Reversed = True
body16 = doc.addObject("PartDesign::Body", "Body015")

# Sketch on YZ plane
sketch19 = body16.newObject("Sketcher::SketchObject", "Sketch018")
sketch19.AttachmentSupport = (doc.getObject("YZ_Plane015"), [""])
sketch19.MapMode = "FlatFace"
sketch19.AttachmentOffset = App.Placement(Vector(0, 0, -0.84958), App.Rotation())
add_polygon(sketch19, [(0.2, -0.76), (0, -0.76), (0, -0.66), (0.2, -0.66)])  # lines 0-3
sketch19.addConstraint([
    Sketcher.Constraint("Horizontal", 0),
    Sketcher.Constraint("Vertical", 1),
    Sketcher.Constraint("Horizontal", 2),
    Sketcher.Constraint("Vertical", 3),
    Sketcher.Constraint("PointOnObject", 0, 2, -2),
    Sketcher.Constraint("DistanceX", 0, 2, 0, 1, Q("0.2 mm")),
    Sketcher.Constraint("DistanceY", 1, 1, 1, 2, Q("0.1 mm")),
    Sketcher.Constraint("DistanceY", 0, 2, -1, 1, Q("0.760504 mm")),
])
sketch19.setExpression("Constraints[9]", "Params.sketch19_width")
sketch19.setExpression("Constraints[10]", "Params.sketch19_height")
pad16 = body16.newObject("PartDesign::Pad", "Pad015")
pad16.Profile = sketch19
pad16.setExpression("Length", "Params.pad16_length")
pad16.Reversed = True

doc.recompute()
